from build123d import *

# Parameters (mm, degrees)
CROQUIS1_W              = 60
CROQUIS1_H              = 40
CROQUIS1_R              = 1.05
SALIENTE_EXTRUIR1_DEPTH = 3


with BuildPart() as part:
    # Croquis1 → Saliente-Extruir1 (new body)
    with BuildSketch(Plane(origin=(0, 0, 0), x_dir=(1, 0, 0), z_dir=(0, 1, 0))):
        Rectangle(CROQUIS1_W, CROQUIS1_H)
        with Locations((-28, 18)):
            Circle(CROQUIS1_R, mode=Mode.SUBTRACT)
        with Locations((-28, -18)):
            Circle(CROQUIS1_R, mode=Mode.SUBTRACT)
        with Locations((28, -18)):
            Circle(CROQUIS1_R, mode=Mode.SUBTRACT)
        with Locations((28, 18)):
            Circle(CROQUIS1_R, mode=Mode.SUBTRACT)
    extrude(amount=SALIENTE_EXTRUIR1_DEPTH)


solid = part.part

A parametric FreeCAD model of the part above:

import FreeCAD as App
import Part
import Sketcher
from FreeCAD import Vector
Q = App.Units.Quantity

doc = App.newDocument("Part")
body = doc.addObject("PartDesign::Body", "Body")

# Sketch on XZ plane
sketch1 = body.newObject("Sketcher::SketchObject", "Sketch")
sketch1.AttachmentSupport = (doc.getObject("XZ_Plane"), [""])
sketch1.MapMode = "FlatFace"
sketch1.addGeometry(Part.LineSegment(Vector(-30, -20, 0), Vector(-30, 20, 0)), False)
sketch1.addGeometry(Part.LineSegment(Vector(-30, 20, 0), Vector(30, 20, 0)), False)
sketch1.addGeometry(Part.LineSegment(Vector(30, 20, 0), Vector(30, -20, 0)), False)
sketch1.addGeometry(Part.LineSegment(Vector(30, -20, 0), Vector(-30, -20, 0)), False)
sketch1.addGeometry(Part.Circle(Vector(-28, 18, 0), Vector(0, 0, 1), 1.1), False)
sketch1.addGeometry(Part.Circle(Vector(28, 18, 0), Vector(0, 0, 1), 1.1), False)
sketch1.addGeometry(Part.Circle(Vector(-28, -18, 0), Vector(0, 0, 1), 1.1), False)
sketch1.addGeometry(Part.Circle(Vector(28, -18, 0), Vector(0, 0, 1), 1.1), False)
sketch1.addConstraint(Sketcher.Constraint("Coincident", 0, 2, 1, 1))
sketch1.addConstraint(Sketcher.Constraint("Coincident", 1, 2, 2, 1))
sketch1.addConstraint(Sketcher.Constraint("Coincident", 2, 2, 3, 1))
sketch1.addConstraint(Sketcher.Constraint("Coincident", 3, 2, 0, 1))
sketch1.addConstraint(Sketcher.Constraint("Vertical", 0))
sketch1.addConstraint(Sketcher.Constraint("Horizontal", 1))
sketch1.addConstraint(Sketcher.Constraint("Vertical", 2))
sketch1.addConstraint(Sketcher.Constraint("Horizontal", 3))
sketch1.addConstraint(Sketcher.Constraint("Equal", 4, 5))
sketch1.addConstraint(Sketcher.Constraint("Equal", 5, 6))
sketch1.addConstraint(Sketcher.Constraint("Equal", 6, 7))
sketch1.addConstraint(Sketcher.Constraint("Symmetric", 5, 3, 6, 3, -1, 1))
sketch1.addConstraint(Sketcher.Constraint("Symmetric", 4, 3, 7, 3, -1, 1))
sketch1.addConstraint(Sketcher.Constraint("Symmetric", 0, 2, 2, 2, -1, 1))
sketch1.addConstraint(Sketcher.Constraint("Symmetric", 4, 3, 5, 3, -2))
sketch1.addConstraint(Sketcher.Constraint("Diameter", 4, Q("2.1 mm")))
sketch1.addConstraint(Sketcher.Constraint("DistanceX", 1, 1, 1, 2, Q("60 mm")))
sketch1.addConstraint(Sketcher.Constraint("DistanceY", 0, 1, 0, 2, Q("40 mm")))
sketch1.addConstraint(Sketcher.Constraint("DistanceX", 4, 3, -1, 1, Q("28 mm")))
sketch1.addConstraint(Sketcher.Constraint("DistanceY", -1, 1, 4, 3, Q("18 mm")))
pad1 = body.newObject("PartDesign::Pad", "Pad")
pad1.Profile = sketch1
pad1.Length = 3
pad1.Reversed = True

doc.recompute()
